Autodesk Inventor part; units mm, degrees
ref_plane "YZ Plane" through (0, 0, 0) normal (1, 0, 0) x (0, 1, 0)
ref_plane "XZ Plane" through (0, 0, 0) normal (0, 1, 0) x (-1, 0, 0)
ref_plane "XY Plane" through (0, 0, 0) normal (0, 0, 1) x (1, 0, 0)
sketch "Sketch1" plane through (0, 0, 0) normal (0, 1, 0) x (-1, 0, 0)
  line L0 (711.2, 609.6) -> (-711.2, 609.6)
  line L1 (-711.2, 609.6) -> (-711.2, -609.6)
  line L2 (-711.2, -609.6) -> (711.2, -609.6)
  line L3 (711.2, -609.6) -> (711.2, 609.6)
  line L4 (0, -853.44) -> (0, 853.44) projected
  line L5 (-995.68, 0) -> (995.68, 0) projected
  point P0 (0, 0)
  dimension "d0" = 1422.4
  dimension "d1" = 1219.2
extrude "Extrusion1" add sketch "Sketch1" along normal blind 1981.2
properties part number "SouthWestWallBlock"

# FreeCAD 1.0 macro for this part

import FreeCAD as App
import Part
import Sketcher
Q = App.Units.Quantity

doc = App.newDocument("Part")
params = doc.addObject("Spreadsheet::Sheet", "Params")
for row, (alias, value) in enumerate([
    ("sketch1_width", "56 in"),
    ("sketch1_height", "48 in"),
    ("pad1_length", "78 in"),
], start=1):
    params.set(f"A{row}", alias)
    params.set(f"B{row}", "=" + value)
    params.setAlias(f"B{row}", alias)

body = doc.addObject("PartDesign::Body", "Body")

# Sketch on XZ plane
sketch1 = doc.addObject("Sketcher::SketchObject", "Sketch")
body.addObject(sketch1)
sketch1.AttachmentSupport = (doc.XZ_Plane, [""])
sketch1.MapMode = "FlatFace"
sketch1.addGeometry(Part.LineSegment(App.Vector(-711, 610, 0), App.Vector(711, 610, 0)), False)
sketch1.addGeometry(Part.LineSegment(App.Vector(711, 610, 0), App.Vector(711, -610, 0)), False)
sketch1.addGeometry(Part.LineSegment(App.Vector(711, -610, 0), App.Vector(-711, -610, 0)), False)
sketch1.addGeometry(Part.LineSegment(App.Vector(-711, -610, 0), App.Vector(-711, 610, 0)), False)
sketch1.addConstraint(Sketcher.Constraint("Coincident", 0, 2, 1, 1))
sketch1.addConstraint(Sketcher.Constraint("Coincident", 1, 2, 2, 1))
sketch1.addConstraint(Sketcher.Constraint("Coincident", 2, 2, 3, 1))
sketch1.addConstraint(Sketcher.Constraint("Coincident", 3, 2, 0, 1))
sketch1.addConstraint(Sketcher.Constraint("Horizontal", 0))
sketch1.addConstraint(Sketcher.Constraint("Vertical", 1))
sketch1.addConstraint(Sketcher.Constraint("Horizontal", 2))
sketch1.addConstraint(Sketcher.Constraint("Vertical", 3))
sketch1.addConstraint(Sketcher.Constraint("Symmetric", 0, 2, 2, 2, -1, 1))
sketch1.addConstraint(Sketcher.Constraint("DistanceX", 0, 1, 0, 2, Q("56 in")))
sketch1.addConstraint(Sketcher.Constraint("DistanceY", 1, 2, 1, 1, Q("48 in")))
sketch1.setExpression("Constraints[9]", "Params.sketch1_width")
sketch1.setExpression("Constraints[10]", "Params.sketch1_height")
pad1 = doc.addObject("PartDesign::Pad", "Pad")
body.addObject(pad1)
pad1.Profile = sketch1
pad1.setExpression("Length", "Params.pad1_length")
pad1.Reversed = True

doc.recompute()
